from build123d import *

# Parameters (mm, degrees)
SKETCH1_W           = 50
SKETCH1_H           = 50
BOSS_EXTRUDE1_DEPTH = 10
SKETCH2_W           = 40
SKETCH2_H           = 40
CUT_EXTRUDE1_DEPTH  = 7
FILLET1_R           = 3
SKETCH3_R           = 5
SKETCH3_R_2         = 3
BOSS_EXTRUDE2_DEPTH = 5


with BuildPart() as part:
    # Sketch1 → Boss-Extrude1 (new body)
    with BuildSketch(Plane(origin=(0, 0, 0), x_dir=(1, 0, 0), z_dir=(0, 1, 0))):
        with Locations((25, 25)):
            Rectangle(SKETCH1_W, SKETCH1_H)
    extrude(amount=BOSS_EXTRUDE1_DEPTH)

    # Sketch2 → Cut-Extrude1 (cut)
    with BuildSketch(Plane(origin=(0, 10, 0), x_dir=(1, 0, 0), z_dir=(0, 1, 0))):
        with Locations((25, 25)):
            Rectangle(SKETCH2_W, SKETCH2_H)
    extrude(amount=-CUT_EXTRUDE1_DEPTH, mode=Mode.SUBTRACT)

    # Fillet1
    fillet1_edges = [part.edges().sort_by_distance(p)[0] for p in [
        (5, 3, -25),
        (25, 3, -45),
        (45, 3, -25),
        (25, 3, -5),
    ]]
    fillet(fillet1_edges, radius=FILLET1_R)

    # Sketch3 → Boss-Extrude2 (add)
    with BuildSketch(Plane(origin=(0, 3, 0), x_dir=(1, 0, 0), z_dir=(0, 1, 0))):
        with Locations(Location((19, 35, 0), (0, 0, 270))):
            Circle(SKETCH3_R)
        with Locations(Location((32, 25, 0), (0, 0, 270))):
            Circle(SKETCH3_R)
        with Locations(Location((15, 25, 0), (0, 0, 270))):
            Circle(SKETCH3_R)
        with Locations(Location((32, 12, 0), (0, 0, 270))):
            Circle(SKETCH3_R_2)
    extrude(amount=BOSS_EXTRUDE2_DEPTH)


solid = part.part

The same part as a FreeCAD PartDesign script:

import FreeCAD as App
import Part
import Sketcher
from FreeCAD import Vector
Q = App.Units.Quantity


def edges_at(feature, points):
    """Names of the edges that pass closest to the given points."""
    edges = feature.Shape.Edges
    near = lambda p: min(range(len(edges)), key=lambda i: edges[i].distToShape(Part.Vertex(*p))[0])
    return sorted({f"Edge{near(p) + 1}" for p in points})

doc = App.newDocument("Part")
body = doc.addObject("PartDesign::Body", "Body")

# Sketch on XZ plane
sketch1 = body.newObject("Sketcher::SketchObject", "Sketch")
sketch1.AttachmentSupport = (doc.getObject("XZ_Plane"), [""])
sketch1.MapMode = "FlatFace"
sketch1.addGeometry(Part.LineSegment(Vector(0, -50, 0), Vector(0, 0, 0)), False)
sketch1.addGeometry(Part.LineSegment(Vector(0, 0, 0), Vector(50, 0, 0)), False)
sketch1.addGeometry(Part.LineSegment(Vector(50, 0, 0), Vector(50, -50, 0)), False)
sketch1.addGeometry(Part.LineSegment(Vector(50, -50, 0), Vector(0, -50, 0)), False)
sketch1.addConstraint(Sketcher.Constraint("Coincident", 0, 2, 1, 1))
sketch1.addConstraint(Sketcher.Constraint("Coincident", 1, 2, 2, 1))
sketch1.addConstraint(Sketcher.Constraint("Coincident", 2, 2, 3, 1))
sketch1.addConstraint(Sketcher.Constraint("Coincident", 3, 2, 0, 1))
sketch1.addConstraint(Sketcher.Constraint("Vertical", 0))
sketch1.addConstraint(Sketcher.Constraint("Horizontal", 1))
sketch1.addConstraint(Sketcher.Constraint("Vertical", 2))
sketch1.addConstraint(Sketcher.Constraint("Horizontal", 3))
sketch1.addConstraint(Sketcher.Constraint("Coincident", 0, 2, -1, 1))
sketch1.addConstraint(Sketcher.Constraint("Equal", 3, 0))
sketch1.addConstraint(Sketcher.Constraint("DistanceX", 1, 1, 1, 2, Q("50 mm")))
pad1 = body.newObject("PartDesign::Pad", "Pad")
pad1.Profile = sketch1
pad1.Length = 10
pad1.Reversed = True

# Sketch on XZ plane
sketch2 = body.newObject("Sketcher::SketchObject", "Sketch001")
sketch2.AttachmentSupport = (doc.getObject("XZ_Plane"), [""])
sketch2.MapMode = "FlatFace"
sketch2.AttachmentOffset = App.Placement(Vector(0, 0, -10), App.Rotation())
sketch2.addGeometry(Part.LineSegment(Vector(5, -45, 0), Vector(5, -5, 0)), False)
sketch2.addGeometry(Part.LineSegment(Vector(5, -5, 0), Vector(45, -5, 0)), False)
sketch2.addGeometry(Part.LineSegment(Vector(45, -5, 0), Vector(45, -45, 0)), False)
sketch2.addGeometry(Part.LineSegment(Vector(45, -45, 0), Vector(5, -45, 0)), False)
sketch2.addConstraint(Sketcher.Constraint("Coincident", 0, 2, 1, 1))
sketch2.addConstraint(Sketcher.Constraint("Coincident", 1, 2, 2, 1))
sketch2.addConstraint(Sketcher.Constraint("Coincident", 2, 2, 3, 1))
sketch2.addConstraint(Sketcher.Constraint("Coincident", 3, 2, 0, 1))
sketch2.addConstraint(Sketcher.Constraint("Vertical", 0))
sketch2.addConstraint(Sketcher.Constraint("Horizontal", 1))
sketch2.addConstraint(Sketcher.Constraint("Vertical", 2))
sketch2.addConstraint(Sketcher.Constraint("Horizontal", 3))
sketch2.addConstraint(Sketcher.Constraint("Equal", 3, 0))
sketch2.addConstraint(Sketcher.Constraint("DistanceX", 1, 1, 1, 2, Q("40 mm")))
sketch2.addConstraint(Sketcher.Constraint("DistanceX", -1, 1, 0, 2, Q("5 mm")))
sketch2.addConstraint(Sketcher.Constraint("DistanceY", 0, 2, -1, 1, Q("5 mm")))
pocket1 = body.newObject("PartDesign::Pocket", "Pocket")
pocket1.Profile = sketch2
pocket1.Length = 7
pocket1.Reversed = True
doc.recompute()

fillet = body.newObject("PartDesign::Fillet", "Fillet")
fillet.Base = (pocket1, edges_at(pocket1, [
    (5, 3, -25),
    (25, 3, -45),
    (45, 3, -25),
    (25, 3, -5),
]))
fillet.Radius = 3

# Sketch on XZ plane
sketch3 = body.newObject("Sketcher::SketchObject", "Sketch002")
sketch3.AttachmentSupport = (doc.getObject("XZ_Plane"), [""])
sketch3.MapMode = "FlatFace"
sketch3.AttachmentOffset = App.Placement(Vector(0, 0, -3), App.Rotation())
sketch3.addGeometry(Part.Circle(Vector(19, -35, 0), Vector(0, 0, 1), 5), False)
sketch3.addGeometry(Part.Circle(Vector(32, -25, 0), Vector(0, 0, 1), 5), False)
sketch3.addGeometry(Part.Circle(Vector(15, -25, 0), Vector(0, 0, 1), 5), False)
sketch3.addGeometry(Part.Circle(Vector(32, -12, 0), Vector(0, 0, 1), 3), False)
sketch3.addConstraint(Sketcher.Constraint("Equal", 0, 1))
sketch3.addConstraint(Sketcher.Constraint("Equal", 1, 2))
sketch3.addConstraint(Sketcher.Constraint("Horizontal", 1, 3, 2, 3))
sketch3.addConstraint(Sketcher.Constraint("Vertical", 1, 3, 3, 3))
sketch3.addConstraint(Sketcher.Constraint("Diameter", 0, Q("10 mm")))
sketch3.addConstraint(Sketcher.Constraint("Diameter", 3, Q("6 mm")))
sketch3.addConstraint(Sketcher.Constraint("DistanceX", -1, 1, 0, 3, Q("19 mm")))
sketch3.addConstraint(Sketcher.Constraint("DistanceY", 0, 3, -1, 1, Q("35 mm")))
sketch3.addConstraint(Sketcher.Constraint("DistanceX", -1, 1, 1, 3, Q("32 mm")))
sketch3.addConstraint(Sketcher.Constraint("DistanceY", 1, 3, -1, 1, Q("25 mm")))
sketch3.addConstraint(Sketcher.Constraint("DistanceX", -1, 1, 2, 3, Q("15 mm")))
sketch3.addConstraint(Sketcher.Constraint("DistanceY", 3, 3, -1, 1, Q("12 mm")))
pad2 = body.newObject("PartDesign::Pad", "Pad001")
pad2.Profile = sketch3
pad2.Length = 5
pad2.Reversed = True

doc.recompute()
